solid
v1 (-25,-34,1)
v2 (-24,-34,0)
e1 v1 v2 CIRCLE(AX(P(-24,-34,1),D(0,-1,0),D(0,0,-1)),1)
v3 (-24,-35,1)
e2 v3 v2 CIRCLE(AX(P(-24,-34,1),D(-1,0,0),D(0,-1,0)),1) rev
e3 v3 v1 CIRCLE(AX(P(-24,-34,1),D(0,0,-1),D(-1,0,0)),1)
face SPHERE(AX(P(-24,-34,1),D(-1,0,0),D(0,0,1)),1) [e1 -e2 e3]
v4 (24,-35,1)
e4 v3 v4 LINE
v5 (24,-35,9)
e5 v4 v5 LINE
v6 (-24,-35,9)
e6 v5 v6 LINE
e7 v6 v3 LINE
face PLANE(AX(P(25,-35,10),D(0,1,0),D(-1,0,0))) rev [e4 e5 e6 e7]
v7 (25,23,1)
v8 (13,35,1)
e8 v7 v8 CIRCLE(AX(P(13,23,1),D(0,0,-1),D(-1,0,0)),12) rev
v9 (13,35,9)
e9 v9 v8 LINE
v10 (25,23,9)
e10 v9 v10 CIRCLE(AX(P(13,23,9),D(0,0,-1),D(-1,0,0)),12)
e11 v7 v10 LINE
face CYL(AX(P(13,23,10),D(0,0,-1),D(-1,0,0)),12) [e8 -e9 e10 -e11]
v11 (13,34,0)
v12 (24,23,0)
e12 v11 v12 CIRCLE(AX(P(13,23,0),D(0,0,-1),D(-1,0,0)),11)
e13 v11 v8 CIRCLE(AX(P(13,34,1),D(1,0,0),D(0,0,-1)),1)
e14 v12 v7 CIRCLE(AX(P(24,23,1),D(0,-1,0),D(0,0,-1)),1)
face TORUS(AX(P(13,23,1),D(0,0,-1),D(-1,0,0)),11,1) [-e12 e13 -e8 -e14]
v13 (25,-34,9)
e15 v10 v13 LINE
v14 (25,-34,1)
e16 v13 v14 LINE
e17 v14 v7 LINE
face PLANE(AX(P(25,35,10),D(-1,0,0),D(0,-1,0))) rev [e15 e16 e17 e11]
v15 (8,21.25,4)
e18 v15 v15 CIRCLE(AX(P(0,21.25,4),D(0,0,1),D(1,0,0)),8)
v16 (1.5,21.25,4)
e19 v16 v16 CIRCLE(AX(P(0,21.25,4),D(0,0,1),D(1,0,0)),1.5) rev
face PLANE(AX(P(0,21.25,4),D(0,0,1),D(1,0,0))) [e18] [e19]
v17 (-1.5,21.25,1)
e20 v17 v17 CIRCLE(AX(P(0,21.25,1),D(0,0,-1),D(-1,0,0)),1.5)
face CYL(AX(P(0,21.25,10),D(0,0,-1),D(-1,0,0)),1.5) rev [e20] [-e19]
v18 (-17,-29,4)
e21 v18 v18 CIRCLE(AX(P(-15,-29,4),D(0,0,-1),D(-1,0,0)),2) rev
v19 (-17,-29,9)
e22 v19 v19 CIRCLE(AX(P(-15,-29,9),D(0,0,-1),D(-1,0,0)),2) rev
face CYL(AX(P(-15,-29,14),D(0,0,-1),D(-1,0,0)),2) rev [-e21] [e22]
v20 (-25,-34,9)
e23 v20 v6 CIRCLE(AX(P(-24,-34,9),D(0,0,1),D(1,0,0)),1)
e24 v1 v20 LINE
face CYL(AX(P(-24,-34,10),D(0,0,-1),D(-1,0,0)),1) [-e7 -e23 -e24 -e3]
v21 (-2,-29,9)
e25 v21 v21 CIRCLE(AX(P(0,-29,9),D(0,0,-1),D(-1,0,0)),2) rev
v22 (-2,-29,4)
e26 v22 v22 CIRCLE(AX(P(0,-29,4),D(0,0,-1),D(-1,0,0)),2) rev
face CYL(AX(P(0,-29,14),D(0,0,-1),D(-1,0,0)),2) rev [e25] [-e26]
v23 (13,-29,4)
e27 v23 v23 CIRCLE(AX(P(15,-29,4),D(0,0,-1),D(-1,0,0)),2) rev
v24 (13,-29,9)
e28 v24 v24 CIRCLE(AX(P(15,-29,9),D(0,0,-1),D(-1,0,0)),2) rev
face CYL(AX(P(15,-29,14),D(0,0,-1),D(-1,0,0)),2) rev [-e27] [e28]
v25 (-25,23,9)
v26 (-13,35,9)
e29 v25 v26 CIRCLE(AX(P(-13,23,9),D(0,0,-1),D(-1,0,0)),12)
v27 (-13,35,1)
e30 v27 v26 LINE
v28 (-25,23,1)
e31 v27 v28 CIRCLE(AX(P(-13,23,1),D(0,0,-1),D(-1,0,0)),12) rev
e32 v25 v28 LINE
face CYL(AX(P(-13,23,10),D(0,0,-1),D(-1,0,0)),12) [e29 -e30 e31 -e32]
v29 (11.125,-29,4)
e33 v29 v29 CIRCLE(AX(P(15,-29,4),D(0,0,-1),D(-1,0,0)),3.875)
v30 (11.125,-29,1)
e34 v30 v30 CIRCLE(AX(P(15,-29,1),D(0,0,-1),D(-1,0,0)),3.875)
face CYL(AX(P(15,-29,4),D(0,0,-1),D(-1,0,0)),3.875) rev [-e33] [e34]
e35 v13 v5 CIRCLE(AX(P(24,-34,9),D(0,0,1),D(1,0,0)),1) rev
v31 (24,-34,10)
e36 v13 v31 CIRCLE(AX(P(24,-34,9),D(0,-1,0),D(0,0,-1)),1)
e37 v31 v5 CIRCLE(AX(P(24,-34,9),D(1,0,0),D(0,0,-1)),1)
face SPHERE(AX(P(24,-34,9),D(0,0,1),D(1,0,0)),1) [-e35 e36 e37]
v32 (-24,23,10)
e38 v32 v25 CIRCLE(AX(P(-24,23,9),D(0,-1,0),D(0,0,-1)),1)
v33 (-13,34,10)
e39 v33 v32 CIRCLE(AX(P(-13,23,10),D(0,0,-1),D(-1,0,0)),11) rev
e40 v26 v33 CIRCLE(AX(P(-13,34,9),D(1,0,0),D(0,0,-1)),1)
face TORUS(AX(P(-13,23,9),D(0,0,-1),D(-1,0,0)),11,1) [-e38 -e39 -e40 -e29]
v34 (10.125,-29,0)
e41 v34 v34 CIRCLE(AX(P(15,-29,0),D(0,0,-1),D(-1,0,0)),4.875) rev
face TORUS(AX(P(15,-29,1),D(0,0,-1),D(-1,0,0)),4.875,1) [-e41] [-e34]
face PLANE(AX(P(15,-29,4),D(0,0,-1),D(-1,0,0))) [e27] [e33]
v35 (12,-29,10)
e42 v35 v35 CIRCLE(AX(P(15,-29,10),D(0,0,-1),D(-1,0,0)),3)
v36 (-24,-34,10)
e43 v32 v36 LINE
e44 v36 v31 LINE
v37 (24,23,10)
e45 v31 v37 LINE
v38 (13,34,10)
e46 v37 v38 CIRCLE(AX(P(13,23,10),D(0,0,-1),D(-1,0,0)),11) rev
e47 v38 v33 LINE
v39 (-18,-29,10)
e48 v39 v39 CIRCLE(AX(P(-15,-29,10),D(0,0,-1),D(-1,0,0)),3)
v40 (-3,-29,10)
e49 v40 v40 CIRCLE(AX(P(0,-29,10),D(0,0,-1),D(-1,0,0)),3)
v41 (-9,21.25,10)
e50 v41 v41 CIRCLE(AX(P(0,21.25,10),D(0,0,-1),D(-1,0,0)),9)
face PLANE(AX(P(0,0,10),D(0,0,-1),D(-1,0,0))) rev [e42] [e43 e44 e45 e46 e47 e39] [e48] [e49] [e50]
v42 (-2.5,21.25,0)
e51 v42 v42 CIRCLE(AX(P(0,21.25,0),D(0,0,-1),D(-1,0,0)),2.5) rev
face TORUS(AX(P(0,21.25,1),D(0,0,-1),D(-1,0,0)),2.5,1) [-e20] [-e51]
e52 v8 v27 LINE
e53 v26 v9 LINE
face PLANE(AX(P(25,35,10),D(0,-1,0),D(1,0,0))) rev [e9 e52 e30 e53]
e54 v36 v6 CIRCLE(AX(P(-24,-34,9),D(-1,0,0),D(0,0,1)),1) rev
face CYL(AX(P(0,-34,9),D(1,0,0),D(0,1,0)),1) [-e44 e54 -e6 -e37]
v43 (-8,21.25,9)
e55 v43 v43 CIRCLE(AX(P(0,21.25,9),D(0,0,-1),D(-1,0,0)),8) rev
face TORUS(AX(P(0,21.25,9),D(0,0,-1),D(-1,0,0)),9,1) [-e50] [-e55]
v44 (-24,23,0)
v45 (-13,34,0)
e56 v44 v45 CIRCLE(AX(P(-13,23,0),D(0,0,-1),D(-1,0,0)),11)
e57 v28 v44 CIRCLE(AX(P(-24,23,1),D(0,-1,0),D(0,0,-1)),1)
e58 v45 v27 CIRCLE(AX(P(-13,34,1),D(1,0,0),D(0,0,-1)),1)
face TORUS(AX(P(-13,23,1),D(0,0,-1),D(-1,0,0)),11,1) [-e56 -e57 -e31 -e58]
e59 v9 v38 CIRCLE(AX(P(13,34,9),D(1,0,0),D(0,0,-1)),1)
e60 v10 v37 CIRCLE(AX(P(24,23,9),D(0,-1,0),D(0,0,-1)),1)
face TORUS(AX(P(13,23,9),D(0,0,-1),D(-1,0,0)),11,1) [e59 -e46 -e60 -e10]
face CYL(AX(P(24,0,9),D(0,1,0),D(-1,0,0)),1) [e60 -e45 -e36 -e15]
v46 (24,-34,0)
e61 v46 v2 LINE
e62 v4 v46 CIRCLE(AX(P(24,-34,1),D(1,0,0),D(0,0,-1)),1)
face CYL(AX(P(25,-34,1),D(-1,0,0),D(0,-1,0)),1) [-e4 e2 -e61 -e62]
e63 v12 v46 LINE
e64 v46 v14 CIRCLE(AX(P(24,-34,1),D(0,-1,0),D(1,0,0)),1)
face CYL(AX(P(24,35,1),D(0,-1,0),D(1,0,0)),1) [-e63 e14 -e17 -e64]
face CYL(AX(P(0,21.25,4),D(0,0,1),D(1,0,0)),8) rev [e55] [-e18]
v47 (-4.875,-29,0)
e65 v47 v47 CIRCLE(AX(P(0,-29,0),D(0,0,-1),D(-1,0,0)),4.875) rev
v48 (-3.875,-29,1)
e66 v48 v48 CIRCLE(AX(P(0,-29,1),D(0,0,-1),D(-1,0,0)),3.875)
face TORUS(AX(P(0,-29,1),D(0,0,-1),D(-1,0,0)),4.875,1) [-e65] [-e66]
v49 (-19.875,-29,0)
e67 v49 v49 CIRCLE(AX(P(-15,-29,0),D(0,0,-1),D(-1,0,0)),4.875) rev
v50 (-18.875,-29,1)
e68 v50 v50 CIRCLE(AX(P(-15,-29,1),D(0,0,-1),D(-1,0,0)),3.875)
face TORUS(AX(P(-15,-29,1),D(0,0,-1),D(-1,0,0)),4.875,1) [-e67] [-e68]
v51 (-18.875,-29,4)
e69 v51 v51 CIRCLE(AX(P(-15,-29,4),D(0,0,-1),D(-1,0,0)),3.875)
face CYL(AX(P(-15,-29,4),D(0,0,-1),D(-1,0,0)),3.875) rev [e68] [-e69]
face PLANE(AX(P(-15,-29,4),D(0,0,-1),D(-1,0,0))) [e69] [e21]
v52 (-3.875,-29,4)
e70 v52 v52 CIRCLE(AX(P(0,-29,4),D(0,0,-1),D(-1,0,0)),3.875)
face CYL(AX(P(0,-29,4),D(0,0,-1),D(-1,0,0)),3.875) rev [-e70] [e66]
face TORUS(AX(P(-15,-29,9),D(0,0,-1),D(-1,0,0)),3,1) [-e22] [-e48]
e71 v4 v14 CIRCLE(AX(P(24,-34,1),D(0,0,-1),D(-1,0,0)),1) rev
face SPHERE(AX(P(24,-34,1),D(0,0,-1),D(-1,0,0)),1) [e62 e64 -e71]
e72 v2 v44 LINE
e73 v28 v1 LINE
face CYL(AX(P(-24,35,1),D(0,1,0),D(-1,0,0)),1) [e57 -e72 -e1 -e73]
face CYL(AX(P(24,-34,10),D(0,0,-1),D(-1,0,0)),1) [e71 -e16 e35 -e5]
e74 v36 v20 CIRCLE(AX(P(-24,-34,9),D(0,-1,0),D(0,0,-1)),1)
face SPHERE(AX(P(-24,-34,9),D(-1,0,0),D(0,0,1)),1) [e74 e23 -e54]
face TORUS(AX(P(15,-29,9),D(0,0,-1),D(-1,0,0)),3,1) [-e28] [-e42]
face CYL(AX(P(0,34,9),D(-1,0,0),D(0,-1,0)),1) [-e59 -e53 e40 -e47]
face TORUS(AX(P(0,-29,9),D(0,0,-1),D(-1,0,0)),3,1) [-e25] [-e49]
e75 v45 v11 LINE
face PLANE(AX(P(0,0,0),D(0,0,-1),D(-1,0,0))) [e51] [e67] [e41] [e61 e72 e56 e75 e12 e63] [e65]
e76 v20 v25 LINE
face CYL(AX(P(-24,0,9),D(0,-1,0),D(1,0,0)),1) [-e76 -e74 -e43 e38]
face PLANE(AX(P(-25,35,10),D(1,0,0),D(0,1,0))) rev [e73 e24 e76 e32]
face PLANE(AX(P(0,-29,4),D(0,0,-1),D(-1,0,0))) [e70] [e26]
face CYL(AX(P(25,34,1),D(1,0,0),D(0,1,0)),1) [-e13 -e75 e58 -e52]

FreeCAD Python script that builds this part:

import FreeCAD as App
import Part
import Sketcher

V = App.Vector
Q = App.Units.Quantity


def edges_at(feature, points):
    """Names of the edges that pass closest to the given points."""
    edges = feature.Shape.Edges
    near = lambda p: min(range(len(edges)), key=lambda i: edges[i].distToShape(Part.Vertex(*p))[0])
    return sorted({f"Edge{near(p) + 1}" for p in points})

doc = App.newDocument("Part")
body = doc.addObject("PartDesign::Body", "Body")

sketch1 = body.newObject("Sketcher::SketchObject", "Sketch")
sketch1.AttachmentSupport = (doc.getObject("XY_Plane"), [""])
sketch1.MapMode = "FlatFace"
sketch1.addGeometry([
    Part.LineSegment(V(-25, 35, 0), V(-25, -35, 0)),
    Part.LineSegment(V(-25, -35, 0), V(25, -35, 0)),
    Part.LineSegment(V(25, -35, 0), V(25, 35, 0)),
    Part.LineSegment(V(25, 35, 0), V(-25, 35, 0)),
], False)
sketch1.addConstraint([
    Sketcher.Constraint("Coincident", 0, 2, 1, 1),
    Sketcher.Constraint("Coincident", 1, 2, 2, 1),
    Sketcher.Constraint("Coincident", 2, 2, 3, 1),
    Sketcher.Constraint("Coincident", 3, 2, 0, 1),
    Sketcher.Constraint("Vertical", 0),
    Sketcher.Constraint("Horizontal", 1),
    Sketcher.Constraint("Vertical", 2),
    Sketcher.Constraint("Horizontal", 3),
    Sketcher.Constraint("Symmetric", 0, 2, 2, 2, -1, 1),
    Sketcher.Constraint("DistanceX", 1, 1, 1, 2, Q("50 mm")),
    Sketcher.Constraint("DistanceY", 0, 2, 0, 1, Q("70 mm")),
])
pad1 = body.newObject("PartDesign::Pad", "Pad")
pad1.Profile = sketch1
pad1.Length = 10

sketch2 = body.newObject("Sketcher::SketchObject", "Sketch001")
sketch2.AttachmentSupport = (doc.getObject("XY_Plane"), [""])
sketch2.MapMode = "FlatFace"
sketch2.addGeometry(Part.Circle(V(0, 21.2, 0), V(0, 0, 1), 1.5), False)
sketch2.addConstraint([
    Sketcher.Constraint("PointOnObject", 0, 3, -2),
    Sketcher.Constraint("Diameter", 0, Q("3 mm")),
    Sketcher.Constraint("DistanceY", -1, 1, 0, 3, Q("21.25 mm")),
])
pocket1 = body.newObject("PartDesign::Pocket", "Pocket")
pocket1.Profile = sketch2
pocket1.Type = "ThroughAll"
pocket1.Reversed = True

sketch3 = body.newObject("Sketcher::SketchObject", "Sketch002")
sketch3.AttachmentSupport = (doc.getObject("XY_Plane"), [""])
sketch3.MapMode = "FlatFace"
sketch3.AttachmentOffset = App.Placement(V(0, 0, 10), App.Rotation())
sketch3.addGeometry(Part.Circle(V(0, 21, 0), V(0, 0, 1), 8), False)
sketch3.addConstraint([
    Sketcher.Constraint("PointOnObject", 0, 3, -2),
    Sketcher.Constraint("Diameter", 0, Q("16 mm")),
    Sketcher.Constraint("DistanceY", -1, 1, 0, 3, Q("21.25 mm")),
])
pocket2 = body.newObject("PartDesign::Pocket", "Pocket001")
pocket2.Profile = sketch3
pocket2.Length = 6
doc.recompute()

fillet = body.newObject("PartDesign::Fillet", "Fillet")
fillet.Base = (pocket2, edges_at(pocket2, [(-25, 35, 5), (25, 35, 5)]))
fillet.Radius = 12

sketch4 = body.newObject("Sketcher::SketchObject", "Sketch003")
sketch4.AttachmentSupport = (doc.getObject("XY_Plane"), [""])
sketch4.MapMode = "FlatFace"
sketch4.addGeometry([
    Part.Circle(V(15, -29, 0), V(0, 0, 1), 2),
    Part.Circle(V(0, -29, 0), V(0, 0, 1), 2),
    Part.Circle(V(-15, -29, 0), V(0, 0, 1), 2),
], False)
sketch4.addConstraint([
    Sketcher.Constraint("Equal", 0, 1),
    Sketcher.Constraint("Equal", 1, 2),
    Sketcher.Constraint("Symmetric", 0, 3, 2, 3, -2),
    Sketcher.Constraint("PointOnObject", 1, 3, -2),
    Sketcher.Constraint("Horizontal", 0, 3, 1, 3),
    Sketcher.Constraint("Diameter", 0, Q("4 mm")),
    Sketcher.Constraint("DistanceX", -1, 1, 0, 3, Q("15 mm")),
    Sketcher.Constraint("DistanceY", 0, 3, -1, 1, Q("29 mm")),
])
pocket3 = body.newObject("PartDesign::Pocket", "Pocket002")
pocket3.Profile = sketch4
pocket3.Length = 14
pocket3.Reversed = True

sketch5 = body.newObject("Sketcher::SketchObject", "Sketch004")
sketch5.AttachmentSupport = (doc.getObject("XY_Plane"), [""])
sketch5.MapMode = "FlatFace"
sketch5.addGeometry([
    Part.Circle(V(15, -29, 0), V(0, 0, 1), 3.9),
    Part.Circle(V(0, -29, 0), V(0, 0, 1), 3.9),
    Part.Circle(V(-15, -29, 0), V(0, 0, 1), 3.9),
], False)
sketch5.addConstraint([
    Sketcher.Constraint("Equal", 0, 1),
    Sketcher.Constraint("Equal", 1, 2),
    Sketcher.Constraint("Symmetric", 0, 3, 2, 3, -2),
    Sketcher.Constraint("PointOnObject", 1, 3, -2),
    Sketcher.Constraint("Horizontal", 0, 3, 1, 3),
    Sketcher.Constraint("Diameter", 0, Q("7.75 mm")),
    Sketcher.Constraint("DistanceX", -1, 1, 0, 3, Q("15 mm")),
    Sketcher.Constraint("DistanceY", 0, 3, -1, 1, Q("29 mm")),
])
pocket4 = body.newObject("PartDesign::Pocket", "Pocket003")
pocket4.Profile = sketch5
pocket4.Length = 4
pocket4.Reversed = True
doc.recompute()

fillet2 = body.newObject("PartDesign::Fillet", "Fillet001")
fillet2.Base = (pocket4, edges_at(pocket4, [
    (25, -6, 10),
    (1.5, 21.25, 0),
    (-8, 21.25, 10),
    (0, 35, 0),
    (0, 35, 10),
    (-25, -6, 0),
    (-21.485, 31.485, 0),
    (21.485, 31.485, 0),
    (-25, -6, 10),
    (-21.485, 31.485, 10),
    (21.485, 31.485, 10),
    (17, -29, 10),
    (2, -29, 10),
    (-13, -29, 10),
    (25, -6, 0),
    (0, -35, 0),
    (18.875, -29, 0),
    (3.875, -29, 0),
    (-11.125, -29, 0),
    (25, -35, 5),
    (-25, -35, 5),
    (0, -35, 10),
]))
fillet2.Radius = 1

doc.recompute()
